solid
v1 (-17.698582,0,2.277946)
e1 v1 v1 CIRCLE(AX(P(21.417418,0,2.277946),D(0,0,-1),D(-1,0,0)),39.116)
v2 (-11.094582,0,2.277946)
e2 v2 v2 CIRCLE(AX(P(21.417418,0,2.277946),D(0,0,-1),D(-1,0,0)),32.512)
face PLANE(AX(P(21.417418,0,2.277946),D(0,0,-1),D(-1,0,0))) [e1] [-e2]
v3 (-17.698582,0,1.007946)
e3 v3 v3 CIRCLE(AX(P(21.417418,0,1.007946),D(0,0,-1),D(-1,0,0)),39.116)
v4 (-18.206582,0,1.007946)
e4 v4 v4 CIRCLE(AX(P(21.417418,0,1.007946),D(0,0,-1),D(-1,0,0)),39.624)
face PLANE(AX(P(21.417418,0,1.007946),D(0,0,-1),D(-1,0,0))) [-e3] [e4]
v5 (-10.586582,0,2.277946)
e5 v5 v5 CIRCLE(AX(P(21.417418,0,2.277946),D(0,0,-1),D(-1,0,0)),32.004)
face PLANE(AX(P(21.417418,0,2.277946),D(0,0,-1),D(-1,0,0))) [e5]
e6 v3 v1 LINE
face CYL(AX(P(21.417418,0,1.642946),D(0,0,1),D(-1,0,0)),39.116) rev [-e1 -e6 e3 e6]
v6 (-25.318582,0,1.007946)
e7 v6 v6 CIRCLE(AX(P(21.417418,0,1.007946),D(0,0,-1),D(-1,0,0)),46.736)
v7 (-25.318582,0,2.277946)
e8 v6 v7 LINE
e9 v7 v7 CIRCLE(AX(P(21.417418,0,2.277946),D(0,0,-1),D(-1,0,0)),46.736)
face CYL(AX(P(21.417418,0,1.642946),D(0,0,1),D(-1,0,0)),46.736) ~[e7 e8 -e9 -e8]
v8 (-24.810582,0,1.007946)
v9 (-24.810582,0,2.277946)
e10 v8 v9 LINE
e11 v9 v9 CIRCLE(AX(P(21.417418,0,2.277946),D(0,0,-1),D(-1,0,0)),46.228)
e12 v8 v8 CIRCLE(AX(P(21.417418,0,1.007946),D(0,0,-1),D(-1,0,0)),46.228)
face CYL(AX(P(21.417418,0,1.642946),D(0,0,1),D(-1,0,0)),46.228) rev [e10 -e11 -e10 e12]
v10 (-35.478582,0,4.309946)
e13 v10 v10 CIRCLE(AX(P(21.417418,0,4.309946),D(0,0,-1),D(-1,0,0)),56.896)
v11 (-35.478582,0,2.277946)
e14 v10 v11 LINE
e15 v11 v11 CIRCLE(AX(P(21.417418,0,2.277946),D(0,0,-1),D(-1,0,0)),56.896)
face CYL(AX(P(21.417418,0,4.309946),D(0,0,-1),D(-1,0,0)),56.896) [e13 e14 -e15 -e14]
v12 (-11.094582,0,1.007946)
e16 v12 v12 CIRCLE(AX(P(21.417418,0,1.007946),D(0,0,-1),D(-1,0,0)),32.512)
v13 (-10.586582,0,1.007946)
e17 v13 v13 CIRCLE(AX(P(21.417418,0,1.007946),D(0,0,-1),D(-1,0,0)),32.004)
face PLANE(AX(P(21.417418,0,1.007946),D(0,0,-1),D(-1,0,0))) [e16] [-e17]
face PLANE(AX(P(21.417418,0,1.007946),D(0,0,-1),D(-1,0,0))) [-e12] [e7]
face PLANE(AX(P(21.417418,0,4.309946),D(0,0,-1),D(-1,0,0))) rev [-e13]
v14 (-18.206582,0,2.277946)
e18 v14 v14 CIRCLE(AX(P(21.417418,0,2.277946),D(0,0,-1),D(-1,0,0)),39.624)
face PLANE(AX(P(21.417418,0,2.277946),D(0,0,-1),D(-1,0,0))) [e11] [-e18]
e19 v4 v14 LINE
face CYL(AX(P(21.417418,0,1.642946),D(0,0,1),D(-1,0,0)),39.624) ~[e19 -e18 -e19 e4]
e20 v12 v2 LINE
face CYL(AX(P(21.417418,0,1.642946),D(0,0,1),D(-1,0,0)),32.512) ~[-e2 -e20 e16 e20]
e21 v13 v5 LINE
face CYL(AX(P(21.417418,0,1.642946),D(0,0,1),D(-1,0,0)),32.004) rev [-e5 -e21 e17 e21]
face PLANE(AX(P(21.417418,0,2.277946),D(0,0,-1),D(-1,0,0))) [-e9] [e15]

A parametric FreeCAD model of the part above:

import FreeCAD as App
import Part
import Sketcher
from FreeCAD import Vector
Q = App.Units.Quantity


def add_polygon(sketch, points):
    """Adds a closed chain of lines whose ends are joined by coincident constraints."""
    first, n = sketch.GeometryCount, len(points)
    for a, b in zip(points, points[1:] + points[:1]):
        sketch.addGeometry(Part.LineSegment(App.Vector(*a, 0), App.Vector(*b, 0)), False)
    for i in range(n):
        sketch.addConstraint(Sketcher.Constraint("Coincident", first + i, 2, first + (i + 1) % n, 1))

doc = App.newDocument("Part")
body = doc.addObject("PartDesign::Body", "Body")

# Sketch on XZ plane
sketch1 = body.newObject("Sketcher::SketchObject", "Sketch")
sketch1.AttachmentSupport = (doc.getObject("XZ_Plane"), [""])
sketch1.MapMode = "FlatFace"
add_polygon(sketch1, [(21.4, 4.3), (-35.5, 4.3), (-35.5, 2.3), (-25.3, 2.3), (-25.3, 1), (-24.8, 1), (-24.8, 2.3), (-18.2, 2.3), (-18.2, 1), (-17.7, 1), (-17.7, 2.3), (-11.1, 2.3), (-11.1, 1), (-10.6, 1), (-10.6, 2.3), (21.4, 2.3)])  # lines 0-15
sketch1.addGeometry(Part.LineSegment(Vector(21.4, 4.3, 0), Vector(21.4, 1, 0)), True)  # axis
sketch1.addConstraint([
    Sketcher.Constraint("Horizontal", 0),
    Sketcher.Constraint("Vertical", 1),
    Sketcher.Constraint("Horizontal", 2),
    Sketcher.Constraint("Vertical", 3),
    Sketcher.Constraint("Horizontal", 4),
    Sketcher.Constraint("Vertical", 5),
    Sketcher.Constraint("Horizontal", 6),
    Sketcher.Constraint("Vertical", 7),
    Sketcher.Constraint("Horizontal", 8),
    Sketcher.Constraint("Vertical", 9),
    Sketcher.Constraint("Horizontal", 10),
    Sketcher.Constraint("Vertical", 11),
    Sketcher.Constraint("Horizontal", 12),
    Sketcher.Constraint("Vertical", 13),
    Sketcher.Constraint("Horizontal", 14),
    Sketcher.Constraint("Vertical", 15),
    Sketcher.Constraint("Vertical", 16),
    Sketcher.Constraint("Coincident", 16, 1, 15, 2),
    Sketcher.Constraint("Horizontal", 2, 2, 5, 2),
    Sketcher.Constraint("Horizontal", 4, 2, 7, 2),
    Sketcher.Constraint("Horizontal", 6, 2, 9, 2),
    Sketcher.Constraint("Horizontal", 8, 2, 11, 2),
    Sketcher.Constraint("Horizontal", 10, 2, 13, 2),
    Sketcher.Constraint("Horizontal", 12, 2, 16, 2),
    Sketcher.Constraint("Equal", 4, 8),
    Sketcher.Constraint("Equal", 6, 10),
    Sketcher.Constraint("Equal", 8, 12),
    Sketcher.Constraint("DistanceX", 2, 1, 2, 2, Q("0.4 in")),
    Sketcher.Constraint("DistanceX", 0, 2, 0, 1, Q("2.24 in")),
    Sketcher.Constraint("DistanceX", 4, 1, 4, 2, Q("0.02 in")),
    Sketcher.Constraint("DistanceX", 6, 1, 6, 2, Q("0.26 in")),
    Sketcher.Constraint("DistanceY", 1, 2, 1, 1, Q("0.08 in")),
    Sketcher.Constraint("DistanceY", 3, 2, 3, 1, Q("0.05 in")),
    Sketcher.Constraint("DistanceX", 2, 2, -1, 1, Q("25.318582 mm")),
    Sketcher.Constraint("DistanceY", -1, 1, 0, 2, Q("4.309946 mm")),
])
revolution = body.newObject("PartDesign::Revolution", "Revolution")
revolution.Profile = sketch1
revolution.ReferenceAxis = (sketch1, ["Axis0"])
revolution.Angle = 360

doc.recompute()
